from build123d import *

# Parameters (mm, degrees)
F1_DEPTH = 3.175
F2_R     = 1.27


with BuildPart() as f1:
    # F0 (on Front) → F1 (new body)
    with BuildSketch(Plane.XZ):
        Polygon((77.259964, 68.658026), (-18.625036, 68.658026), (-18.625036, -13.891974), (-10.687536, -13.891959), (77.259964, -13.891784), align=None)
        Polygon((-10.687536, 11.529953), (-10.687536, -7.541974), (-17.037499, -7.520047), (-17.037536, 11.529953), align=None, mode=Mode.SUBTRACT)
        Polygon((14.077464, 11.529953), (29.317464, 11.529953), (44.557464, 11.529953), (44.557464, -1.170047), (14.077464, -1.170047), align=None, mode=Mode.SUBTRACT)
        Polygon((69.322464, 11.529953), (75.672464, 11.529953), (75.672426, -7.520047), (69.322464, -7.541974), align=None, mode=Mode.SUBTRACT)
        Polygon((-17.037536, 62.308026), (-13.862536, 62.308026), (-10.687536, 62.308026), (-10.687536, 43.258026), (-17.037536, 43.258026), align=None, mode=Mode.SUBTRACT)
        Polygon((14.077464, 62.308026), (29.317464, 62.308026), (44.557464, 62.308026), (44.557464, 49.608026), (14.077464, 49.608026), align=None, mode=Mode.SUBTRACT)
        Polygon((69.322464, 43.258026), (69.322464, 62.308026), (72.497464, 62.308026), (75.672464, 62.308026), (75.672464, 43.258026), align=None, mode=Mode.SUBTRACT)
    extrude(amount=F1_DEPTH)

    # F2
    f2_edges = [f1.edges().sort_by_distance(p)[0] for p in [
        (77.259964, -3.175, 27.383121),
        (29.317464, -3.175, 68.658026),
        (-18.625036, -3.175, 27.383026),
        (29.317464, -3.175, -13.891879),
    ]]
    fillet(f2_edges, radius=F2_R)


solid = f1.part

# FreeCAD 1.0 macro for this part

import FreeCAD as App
import Part
import Sketcher
from FreeCAD import Vector
Q = App.Units.Quantity


def edges_at(feature, points):
    """Names of the edges that pass closest to the given points."""
    edges = feature.Shape.Edges
    near = lambda p: min(range(len(edges)), key=lambda i: edges[i].distToShape(Part.Vertex(*p))[0])
    return sorted({f"Edge{near(p) + 1}" for p in points})


def add_polygon(sketch, points):
    """Adds a closed chain of lines whose ends are joined by coincident constraints."""
    first, n = sketch.GeometryCount, len(points)
    for a, b in zip(points, points[1:] + points[:1]):
        sketch.addGeometry(Part.LineSegment(App.Vector(*a, 0), App.Vector(*b, 0)), False)
    for i in range(n):
        sketch.addConstraint(Sketcher.Constraint("Coincident", first + i, 2, first + (i + 1) % n, 1))

doc = App.newDocument("Part")
params = doc.addObject("Spreadsheet::Sheet", "Params")
for row, (alias, value) in enumerate([
    ("sketch1_width", "1.2 in"),
    ("sketch1_width2", "1.2 in"),
    ("sketch1_height", "0.5 in"),
    ("sketch1_height2", "0.5 in"),
    ("sketch1_width3", "0.25 in"),
    ("pad1_length", "0.125 in"),
    ("fillet_radius", "0.05 in"),
], start=1):
    params.set(f"A{row}", alias)
    params.set(f"B{row}", "=" + value)
    params.setAlias(f"B{row}", alias)

body = doc.addObject("PartDesign::Body", "Body")

# Sketch on XZ plane
sketch1 = body.newObject("Sketcher::SketchObject", "Sketch")
sketch1.AttachmentSupport = (doc.getObject("XZ_Plane"), [""])
sketch1.MapMode = "FlatFace"
add_polygon(sketch1, [(77.259964, 68.658026), (-18.625036, 68.658026), (-18.625036, -13.891974), (-10.687536, -13.891959), (77.259964, -13.891784)])  # lines 0-4
add_polygon(sketch1, [(-17.037536, 11.529953), (-10.687536, 11.529953), (-10.687536, -7.541974), (-17.037499, -7.520047)])  # lines 5-8
add_polygon(sketch1, [(14.077464, -1.170047), (14.077464, 11.529953), (44.557464, 11.529953), (44.557464, -1.170047)])  # lines 9-12
add_polygon(sketch1, [(69.322464, -7.541974), (69.322464, 11.529953), (75.672464, 11.529953), (75.672426, -7.520047)])  # lines 13-16
add_polygon(sketch1, [(-17.037536, 43.258026), (-17.037536, 62.308026), (-10.687536, 62.308026), (-10.687536, 43.258026)])  # lines 17-20
add_polygon(sketch1, [(14.077464, 49.608026), (14.077464, 62.308026), (44.557464, 62.308026), (44.557464, 49.608026)])  # lines 21-24
add_polygon(sketch1, [(75.672464, 43.258026), (69.322464, 43.258026), (69.322464, 62.308026), (75.672464, 62.308026)])  # lines 25-28
sketch1.addConstraint([
    Sketcher.Constraint("Horizontal", 0),
    Sketcher.Constraint("Vertical", 1),
    Sketcher.Constraint("Vertical", 4),
    Sketcher.Constraint("Horizontal", 5),
    Sketcher.Constraint("Vertical", 6),
    Sketcher.Constraint("Vertical", 9),
    Sketcher.Constraint("Horizontal", 10),
    Sketcher.Constraint("Vertical", 11),
    Sketcher.Constraint("Horizontal", 12),
    Sketcher.Constraint("Vertical", 13),
    Sketcher.Constraint("Horizontal", 14),
    Sketcher.Constraint("Vertical", 17),
    Sketcher.Constraint("Horizontal", 18),
    Sketcher.Constraint("Vertical", 19),
    Sketcher.Constraint("Horizontal", 20),
    Sketcher.Constraint("Vertical", 21),
    Sketcher.Constraint("Horizontal", 22),
    Sketcher.Constraint("Vertical", 23),
    Sketcher.Constraint("Horizontal", 24),
    Sketcher.Constraint("Horizontal", 25),
    Sketcher.Constraint("Vertical", 26),
    Sketcher.Constraint("Horizontal", 27),
    Sketcher.Constraint("Vertical", 28),
    Sketcher.Constraint("DistanceX", 10, 1, 10, 2, Q("1.2 in")),
    Sketcher.Constraint("DistanceX", 22, 1, 22, 2, Q("1.2 in")),
    Sketcher.Constraint("DistanceY", 9, 1, 9, 2, Q("0.5 in")),
    Sketcher.Constraint("DistanceY", 21, 1, 21, 2, Q("0.5 in")),
    Sketcher.Constraint("DistanceY", 6, 2, 0, 2, Q("3 in")),
    Sketcher.Constraint("DistanceY", 19, 2, 0, 2, Q("1 in")),
    Sketcher.Constraint("DistanceY", 25, 2, 4, 2, Q("1 in")),
    Sketcher.Constraint("DistanceX", 5, 1, 5, 2, Q("0.25 in")),
    Sketcher.Constraint("DistanceX", 14, 1, 14, 2, Q("0.25 in")),
    Sketcher.Constraint("DistanceX", 18, 1, 18, 2, Q("0.25 in")),
    Sketcher.Constraint("DistanceX", 25, 2, 25, 1, Q("0.25 in")),
    Sketcher.Constraint("DistanceY", 1, 2, 1, 1, Q("3.25 in")),
    Sketcher.Constraint("DistanceY", 17, 1, 17, 2, Q("0.75 in")),
    Sketcher.Constraint("DistanceY", 26, 1, 26, 2, Q("0.75 in")),
    Sketcher.Constraint("DistanceY", 11, 2, 5, 2, Q("0.5 in")),
    Sketcher.Constraint("DistanceY", 11, 2, 13, 2, Q("0.5 in")),
    Sketcher.Constraint("DistanceY", 24, 2, 18, 2, Q("0.5 in")),
    Sketcher.Constraint("Distance", 7, Q("0.25 in")),
    Sketcher.Constraint("Distance", 8, Q("0.75 in")),
    Sketcher.Constraint("Distance", 15, Q("0.75 in")),
    Sketcher.Constraint("Distance", 16, Q("0.25 in")),
    Sketcher.Constraint("DistanceX", 0, 2, 0, 1, Q("3.775 in")),
    Sketcher.Constraint("DistanceX", 8, 2, 2, 2, Q("0.25 in")),
    Sketcher.Constraint("DistanceX", 17, 2, 5, 2, Q("0.25 in")),
    Sketcher.Constraint("DistanceX", 25, 2, 14, 2, Q("0.25 in")),
    Sketcher.Constraint("Distance", 2, Q("0.3125 in")),
    Sketcher.Constraint("DistanceX", 5, 2, 9, 2, Q("0.975 in")),
    Sketcher.Constraint("DistanceX", 10, 2, 13, 2, Q("0.975 in")),
    Sketcher.Constraint("DistanceX", 18, 2, 21, 2, Q("0.975 in")),
    Sketcher.Constraint("DistanceY", 4, 1, 4, 2, 82.54981),
    Sketcher.Constraint("DistanceX", 7, 2, -1, 1, 17.037499),
    Sketcher.Constraint("DistanceY", 6, 2, 6, 1, 19.071927),
    Sketcher.Constraint("DistanceY", 13, 1, 13, 2, 19.071927),
    Sketcher.Constraint("DistanceY", 2, 2, -1, 1, 13.891959),
    Sketcher.Constraint("DistanceY", 2, 2, 5, 2, 25.421912),
])
sketch1.setExpression("Constraints[52]", "Params.sketch1_width")
sketch1.setExpression("Constraints[53]", "Params.sketch1_width2")
sketch1.setExpression("Constraints[54]", "Params.sketch1_height")
sketch1.setExpression("Constraints[55]", "Params.sketch1_height2")
sketch1.setExpression("Constraints[59]", "Params.sketch1_width3")
pad1 = body.newObject("PartDesign::Pad", "Pad")
pad1.Profile = sketch1
pad1.setExpression("Length", "Params.pad1_length")
doc.recompute()

fillet = body.newObject("PartDesign::Fillet", "Fillet")
fillet.Base = (pad1, edges_at(pad1, [
    (77.26, -3.175, 27.383),
    (29.317, -3.175, 68.658),
    (-18.625, -3.175, 27.383),
    (33.286, -3.175, -13.892),
]))
fillet.setExpression("Radius", "Params.fillet_radius")

doc.recompute()
